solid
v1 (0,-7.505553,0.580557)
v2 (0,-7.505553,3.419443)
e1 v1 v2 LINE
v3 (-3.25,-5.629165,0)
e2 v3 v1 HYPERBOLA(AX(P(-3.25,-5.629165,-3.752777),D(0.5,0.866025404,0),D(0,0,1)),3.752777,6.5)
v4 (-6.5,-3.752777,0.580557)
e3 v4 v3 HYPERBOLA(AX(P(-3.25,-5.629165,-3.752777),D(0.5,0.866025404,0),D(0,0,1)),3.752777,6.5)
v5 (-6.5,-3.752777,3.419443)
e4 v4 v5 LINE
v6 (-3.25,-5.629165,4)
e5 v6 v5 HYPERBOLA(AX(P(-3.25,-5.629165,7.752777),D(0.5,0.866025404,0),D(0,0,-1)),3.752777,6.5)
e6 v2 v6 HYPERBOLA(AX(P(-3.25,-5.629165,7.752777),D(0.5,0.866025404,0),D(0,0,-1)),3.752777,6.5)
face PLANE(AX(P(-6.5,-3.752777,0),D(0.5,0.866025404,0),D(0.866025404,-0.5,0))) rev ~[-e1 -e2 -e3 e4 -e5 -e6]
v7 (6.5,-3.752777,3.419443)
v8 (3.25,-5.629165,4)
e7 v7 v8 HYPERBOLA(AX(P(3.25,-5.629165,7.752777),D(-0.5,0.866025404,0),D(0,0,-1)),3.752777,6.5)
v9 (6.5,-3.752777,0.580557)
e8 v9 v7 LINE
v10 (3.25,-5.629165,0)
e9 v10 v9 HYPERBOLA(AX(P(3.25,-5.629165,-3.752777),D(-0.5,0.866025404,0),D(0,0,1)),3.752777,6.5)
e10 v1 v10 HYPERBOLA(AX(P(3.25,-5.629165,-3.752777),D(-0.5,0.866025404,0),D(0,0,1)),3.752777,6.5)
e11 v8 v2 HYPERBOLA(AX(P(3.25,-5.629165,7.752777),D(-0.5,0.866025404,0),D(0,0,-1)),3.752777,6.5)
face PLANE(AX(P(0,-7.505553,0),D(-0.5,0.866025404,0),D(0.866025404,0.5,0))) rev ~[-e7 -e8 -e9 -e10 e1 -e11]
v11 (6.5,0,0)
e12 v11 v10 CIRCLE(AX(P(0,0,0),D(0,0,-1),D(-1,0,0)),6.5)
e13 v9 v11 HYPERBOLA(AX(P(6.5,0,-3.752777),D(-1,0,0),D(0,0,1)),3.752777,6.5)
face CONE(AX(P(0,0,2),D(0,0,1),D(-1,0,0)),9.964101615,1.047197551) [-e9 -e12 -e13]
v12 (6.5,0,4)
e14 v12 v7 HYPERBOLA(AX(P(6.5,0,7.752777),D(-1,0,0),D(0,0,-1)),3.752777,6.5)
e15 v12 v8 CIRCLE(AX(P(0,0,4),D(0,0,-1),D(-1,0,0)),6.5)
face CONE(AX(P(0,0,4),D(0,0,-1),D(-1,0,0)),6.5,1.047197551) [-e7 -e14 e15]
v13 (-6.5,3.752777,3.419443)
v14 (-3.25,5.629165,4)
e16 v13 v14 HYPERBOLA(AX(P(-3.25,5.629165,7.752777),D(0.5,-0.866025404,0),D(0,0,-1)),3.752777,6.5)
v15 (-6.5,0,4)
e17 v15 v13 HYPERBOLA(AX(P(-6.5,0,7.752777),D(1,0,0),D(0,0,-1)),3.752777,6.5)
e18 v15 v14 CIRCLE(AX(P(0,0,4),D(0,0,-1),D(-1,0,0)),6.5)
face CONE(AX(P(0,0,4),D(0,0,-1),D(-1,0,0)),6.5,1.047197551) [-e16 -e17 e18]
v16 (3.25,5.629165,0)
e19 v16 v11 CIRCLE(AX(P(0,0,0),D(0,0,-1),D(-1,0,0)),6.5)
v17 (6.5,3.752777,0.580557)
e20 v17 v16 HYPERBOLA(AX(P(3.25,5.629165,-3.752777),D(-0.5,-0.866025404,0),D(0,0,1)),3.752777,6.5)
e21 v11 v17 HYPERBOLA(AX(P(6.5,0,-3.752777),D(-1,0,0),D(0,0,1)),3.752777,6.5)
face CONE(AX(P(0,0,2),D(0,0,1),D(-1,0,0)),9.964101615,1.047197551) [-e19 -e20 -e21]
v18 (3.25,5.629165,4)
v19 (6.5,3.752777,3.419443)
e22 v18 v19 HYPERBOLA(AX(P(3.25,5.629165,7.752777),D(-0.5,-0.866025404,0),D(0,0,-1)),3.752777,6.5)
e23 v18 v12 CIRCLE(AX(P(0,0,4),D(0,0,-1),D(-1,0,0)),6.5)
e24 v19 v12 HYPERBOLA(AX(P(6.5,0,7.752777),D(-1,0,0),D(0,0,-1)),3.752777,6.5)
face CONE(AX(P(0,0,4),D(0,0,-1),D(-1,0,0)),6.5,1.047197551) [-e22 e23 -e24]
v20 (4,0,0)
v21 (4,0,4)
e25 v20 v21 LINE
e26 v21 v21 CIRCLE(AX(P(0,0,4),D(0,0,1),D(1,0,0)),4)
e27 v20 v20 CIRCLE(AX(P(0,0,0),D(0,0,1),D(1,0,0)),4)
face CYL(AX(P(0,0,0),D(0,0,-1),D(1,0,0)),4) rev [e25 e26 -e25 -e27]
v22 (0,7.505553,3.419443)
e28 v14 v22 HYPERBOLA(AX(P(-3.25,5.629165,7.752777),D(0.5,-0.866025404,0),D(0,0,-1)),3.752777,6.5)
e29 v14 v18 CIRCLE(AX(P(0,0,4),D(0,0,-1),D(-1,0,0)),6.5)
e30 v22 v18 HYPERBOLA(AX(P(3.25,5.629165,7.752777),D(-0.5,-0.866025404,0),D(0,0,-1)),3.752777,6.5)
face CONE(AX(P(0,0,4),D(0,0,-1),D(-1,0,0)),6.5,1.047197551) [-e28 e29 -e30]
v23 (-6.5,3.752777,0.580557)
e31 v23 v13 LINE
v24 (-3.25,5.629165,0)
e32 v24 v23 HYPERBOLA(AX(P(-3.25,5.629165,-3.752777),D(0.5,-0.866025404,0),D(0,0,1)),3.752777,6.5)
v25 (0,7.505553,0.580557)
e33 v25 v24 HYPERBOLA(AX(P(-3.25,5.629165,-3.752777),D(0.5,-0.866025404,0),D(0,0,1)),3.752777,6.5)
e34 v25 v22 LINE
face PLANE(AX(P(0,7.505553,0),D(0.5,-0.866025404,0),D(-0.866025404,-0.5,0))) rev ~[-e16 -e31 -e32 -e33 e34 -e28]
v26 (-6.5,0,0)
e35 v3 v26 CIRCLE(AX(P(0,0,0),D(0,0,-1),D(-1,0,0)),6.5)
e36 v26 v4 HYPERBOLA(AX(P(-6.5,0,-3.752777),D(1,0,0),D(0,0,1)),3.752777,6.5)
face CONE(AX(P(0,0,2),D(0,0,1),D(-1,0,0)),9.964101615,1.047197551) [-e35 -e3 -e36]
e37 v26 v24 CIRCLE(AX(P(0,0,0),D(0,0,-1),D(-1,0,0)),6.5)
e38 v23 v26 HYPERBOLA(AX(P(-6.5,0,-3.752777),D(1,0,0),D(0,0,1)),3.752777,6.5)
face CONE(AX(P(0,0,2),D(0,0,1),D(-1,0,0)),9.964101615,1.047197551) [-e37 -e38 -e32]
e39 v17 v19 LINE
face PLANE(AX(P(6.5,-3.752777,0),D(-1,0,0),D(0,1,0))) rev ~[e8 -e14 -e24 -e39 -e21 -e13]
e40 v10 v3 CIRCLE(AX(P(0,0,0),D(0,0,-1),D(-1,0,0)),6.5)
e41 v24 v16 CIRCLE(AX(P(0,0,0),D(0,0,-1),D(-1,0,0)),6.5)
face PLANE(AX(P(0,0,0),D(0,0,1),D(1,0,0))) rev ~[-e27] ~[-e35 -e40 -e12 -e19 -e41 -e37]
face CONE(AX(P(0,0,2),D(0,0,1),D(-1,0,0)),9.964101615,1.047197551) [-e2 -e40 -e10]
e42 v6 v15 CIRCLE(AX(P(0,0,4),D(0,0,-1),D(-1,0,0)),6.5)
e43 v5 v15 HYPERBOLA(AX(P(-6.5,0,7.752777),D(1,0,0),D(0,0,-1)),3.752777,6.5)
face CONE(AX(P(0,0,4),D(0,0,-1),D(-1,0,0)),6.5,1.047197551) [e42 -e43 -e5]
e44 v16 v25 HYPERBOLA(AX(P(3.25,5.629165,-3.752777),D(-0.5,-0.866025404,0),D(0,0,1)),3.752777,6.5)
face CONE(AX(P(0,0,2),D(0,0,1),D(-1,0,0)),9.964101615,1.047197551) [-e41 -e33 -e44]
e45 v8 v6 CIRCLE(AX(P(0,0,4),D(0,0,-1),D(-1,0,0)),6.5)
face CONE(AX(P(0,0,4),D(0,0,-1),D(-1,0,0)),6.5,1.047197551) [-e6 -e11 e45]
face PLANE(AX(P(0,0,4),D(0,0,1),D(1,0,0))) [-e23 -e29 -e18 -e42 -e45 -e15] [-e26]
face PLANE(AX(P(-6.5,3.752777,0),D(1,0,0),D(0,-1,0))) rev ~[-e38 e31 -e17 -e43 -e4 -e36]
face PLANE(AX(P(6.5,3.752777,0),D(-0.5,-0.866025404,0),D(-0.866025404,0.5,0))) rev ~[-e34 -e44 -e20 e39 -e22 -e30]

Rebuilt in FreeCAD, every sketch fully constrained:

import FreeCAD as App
import Part
import Sketcher

V = App.Vector
Q = App.Units.Quantity

doc = App.newDocument("Part")
body = doc.addObject("PartDesign::Body", "Body")

sketch1 = doc.addObject("Sketcher::SketchObject", "Sketch")
body.addObject(sketch1)
sketch1.AttachmentSupport = (doc.XY_Plane, [""])
sketch1.MapMode = "FlatFace"
sketch1.addGeometry([
    Part.LineSegment(V(6.5, 3.8, 0), V(0, 7.5, 0)),
    Part.LineSegment(V(0, 7.5, 0), V(-6.5, 3.8, 0)),
    Part.LineSegment(V(-6.5, 3.8, 0), V(-6.5, -3.8, 0)),
    Part.LineSegment(V(-6.5, -3.8, 0), V(0, -7.5, 0)),
    Part.LineSegment(V(0, -7.5, 0), V(6.5, -3.8, 0)),
    Part.LineSegment(V(6.5, -3.8, 0), V(6.5, 3.8, 0)),
    Part.Circle(V(0, 0, 0), V(0, 0, 1), 4),
], False)
sketch1.addConstraint([
    Sketcher.Constraint("Coincident", 0, 2, 1, 1),
    Sketcher.Constraint("Coincident", 1, 2, 2, 1),
    Sketcher.Constraint("Coincident", 2, 2, 3, 1),
    Sketcher.Constraint("Coincident", 3, 2, 4, 1),
    Sketcher.Constraint("Coincident", 4, 2, 5, 1),
    Sketcher.Constraint("Coincident", 5, 2, 0, 1),
    Sketcher.Constraint("Vertical", 2),
    Sketcher.Constraint("Vertical", 5),
    Sketcher.Constraint("Coincident", 6, 3, -1, 1),
    Sketcher.Constraint("Symmetric", 0, 2, 3, 2, -1, 1),
    Sketcher.Constraint("Symmetric", 1, 2, 4, 2, -1, 1),
    Sketcher.Constraint("PointOnObject", 0, 2, -2),
    Sketcher.Constraint("Parallel", 0, 3),
    Sketcher.Constraint("Horizontal", 2, 2, 4, 2),
    Sketcher.Constraint("Diameter", 6, 8.0),
    Sketcher.Constraint("Angle", 0, Q("150 deg")),
    Sketcher.Constraint("DistanceX", 2, 2, 4, 2, 13.0),
    Sketcher.Constraint("DistanceY", 2, 2, 2, 1, 7.505554),
])
pad1 = doc.addObject("PartDesign::Pad", "Pad")
body.addObject(pad1)
pad1.Profile = sketch1
pad1.Length = 4

sketch2 = doc.addObject("Sketcher::SketchObject", "Sketch001")
body.addObject(sketch2)
sketch2.AttachmentSupport = (doc.XZ_Plane, [""])
sketch2.MapMode = "FlatFace"
sketch2.addGeometry([
    Part.LineSegment(V(-10, 4, 0), V(-6.5, 4, 0)),
    Part.LineSegment(V(-6.5, 4, 0), V(-10, 2, 0)),
    Part.LineSegment(V(-10, 2, 0), V(-10, 4, 0)),
    Part.LineSegment(V(-10, 2, 0), V(-6.5, 0, 0)),
    Part.LineSegment(V(-6.5, 0, 0), V(-10, 0, 0)),
    Part.LineSegment(V(-10, 0, 0), V(-10, 2, 0)),
], False)
sketch2.addConstraint([
    Sketcher.Constraint("Coincident", 0, 2, 1, 1),
    Sketcher.Constraint("Coincident", 1, 2, 2, 1),
    Sketcher.Constraint("Coincident", 2, 2, 0, 1),
    Sketcher.Constraint("Coincident", 3, 2, 4, 1),
    Sketcher.Constraint("Coincident", 4, 2, 5, 1),
    Sketcher.Constraint("Coincident", 5, 2, 3, 1),
    Sketcher.Constraint("Horizontal", 0),
    Sketcher.Constraint("Vertical", 2),
    Sketcher.Constraint("Horizontal", 4),
    Sketcher.Constraint("Vertical", 5),
    Sketcher.Constraint("Coincident", 5, 2, 1, 2),
    Sketcher.Constraint("PointOnObject", 3, 2, -1),
    Sketcher.Constraint("Vertical", 0, 2, 3, 2),
    Sketcher.Constraint("Equal", 2, 5),
    Sketcher.Constraint("DistanceY", 2, 1, 2, 2, 2.0),
    Sketcher.Constraint("Angle", 1, Q("-150 deg")),
    Sketcher.Constraint("DistanceX", 0, 2, -1, 1, 6.5),
])
groove = doc.addObject("PartDesign::Groove", "Groove")
body.addObject(groove)
groove.Profile = sketch2
groove.ReferenceAxis = (sketch2, ["V_Axis"])
groove.Angle = 360

doc.recompute()
